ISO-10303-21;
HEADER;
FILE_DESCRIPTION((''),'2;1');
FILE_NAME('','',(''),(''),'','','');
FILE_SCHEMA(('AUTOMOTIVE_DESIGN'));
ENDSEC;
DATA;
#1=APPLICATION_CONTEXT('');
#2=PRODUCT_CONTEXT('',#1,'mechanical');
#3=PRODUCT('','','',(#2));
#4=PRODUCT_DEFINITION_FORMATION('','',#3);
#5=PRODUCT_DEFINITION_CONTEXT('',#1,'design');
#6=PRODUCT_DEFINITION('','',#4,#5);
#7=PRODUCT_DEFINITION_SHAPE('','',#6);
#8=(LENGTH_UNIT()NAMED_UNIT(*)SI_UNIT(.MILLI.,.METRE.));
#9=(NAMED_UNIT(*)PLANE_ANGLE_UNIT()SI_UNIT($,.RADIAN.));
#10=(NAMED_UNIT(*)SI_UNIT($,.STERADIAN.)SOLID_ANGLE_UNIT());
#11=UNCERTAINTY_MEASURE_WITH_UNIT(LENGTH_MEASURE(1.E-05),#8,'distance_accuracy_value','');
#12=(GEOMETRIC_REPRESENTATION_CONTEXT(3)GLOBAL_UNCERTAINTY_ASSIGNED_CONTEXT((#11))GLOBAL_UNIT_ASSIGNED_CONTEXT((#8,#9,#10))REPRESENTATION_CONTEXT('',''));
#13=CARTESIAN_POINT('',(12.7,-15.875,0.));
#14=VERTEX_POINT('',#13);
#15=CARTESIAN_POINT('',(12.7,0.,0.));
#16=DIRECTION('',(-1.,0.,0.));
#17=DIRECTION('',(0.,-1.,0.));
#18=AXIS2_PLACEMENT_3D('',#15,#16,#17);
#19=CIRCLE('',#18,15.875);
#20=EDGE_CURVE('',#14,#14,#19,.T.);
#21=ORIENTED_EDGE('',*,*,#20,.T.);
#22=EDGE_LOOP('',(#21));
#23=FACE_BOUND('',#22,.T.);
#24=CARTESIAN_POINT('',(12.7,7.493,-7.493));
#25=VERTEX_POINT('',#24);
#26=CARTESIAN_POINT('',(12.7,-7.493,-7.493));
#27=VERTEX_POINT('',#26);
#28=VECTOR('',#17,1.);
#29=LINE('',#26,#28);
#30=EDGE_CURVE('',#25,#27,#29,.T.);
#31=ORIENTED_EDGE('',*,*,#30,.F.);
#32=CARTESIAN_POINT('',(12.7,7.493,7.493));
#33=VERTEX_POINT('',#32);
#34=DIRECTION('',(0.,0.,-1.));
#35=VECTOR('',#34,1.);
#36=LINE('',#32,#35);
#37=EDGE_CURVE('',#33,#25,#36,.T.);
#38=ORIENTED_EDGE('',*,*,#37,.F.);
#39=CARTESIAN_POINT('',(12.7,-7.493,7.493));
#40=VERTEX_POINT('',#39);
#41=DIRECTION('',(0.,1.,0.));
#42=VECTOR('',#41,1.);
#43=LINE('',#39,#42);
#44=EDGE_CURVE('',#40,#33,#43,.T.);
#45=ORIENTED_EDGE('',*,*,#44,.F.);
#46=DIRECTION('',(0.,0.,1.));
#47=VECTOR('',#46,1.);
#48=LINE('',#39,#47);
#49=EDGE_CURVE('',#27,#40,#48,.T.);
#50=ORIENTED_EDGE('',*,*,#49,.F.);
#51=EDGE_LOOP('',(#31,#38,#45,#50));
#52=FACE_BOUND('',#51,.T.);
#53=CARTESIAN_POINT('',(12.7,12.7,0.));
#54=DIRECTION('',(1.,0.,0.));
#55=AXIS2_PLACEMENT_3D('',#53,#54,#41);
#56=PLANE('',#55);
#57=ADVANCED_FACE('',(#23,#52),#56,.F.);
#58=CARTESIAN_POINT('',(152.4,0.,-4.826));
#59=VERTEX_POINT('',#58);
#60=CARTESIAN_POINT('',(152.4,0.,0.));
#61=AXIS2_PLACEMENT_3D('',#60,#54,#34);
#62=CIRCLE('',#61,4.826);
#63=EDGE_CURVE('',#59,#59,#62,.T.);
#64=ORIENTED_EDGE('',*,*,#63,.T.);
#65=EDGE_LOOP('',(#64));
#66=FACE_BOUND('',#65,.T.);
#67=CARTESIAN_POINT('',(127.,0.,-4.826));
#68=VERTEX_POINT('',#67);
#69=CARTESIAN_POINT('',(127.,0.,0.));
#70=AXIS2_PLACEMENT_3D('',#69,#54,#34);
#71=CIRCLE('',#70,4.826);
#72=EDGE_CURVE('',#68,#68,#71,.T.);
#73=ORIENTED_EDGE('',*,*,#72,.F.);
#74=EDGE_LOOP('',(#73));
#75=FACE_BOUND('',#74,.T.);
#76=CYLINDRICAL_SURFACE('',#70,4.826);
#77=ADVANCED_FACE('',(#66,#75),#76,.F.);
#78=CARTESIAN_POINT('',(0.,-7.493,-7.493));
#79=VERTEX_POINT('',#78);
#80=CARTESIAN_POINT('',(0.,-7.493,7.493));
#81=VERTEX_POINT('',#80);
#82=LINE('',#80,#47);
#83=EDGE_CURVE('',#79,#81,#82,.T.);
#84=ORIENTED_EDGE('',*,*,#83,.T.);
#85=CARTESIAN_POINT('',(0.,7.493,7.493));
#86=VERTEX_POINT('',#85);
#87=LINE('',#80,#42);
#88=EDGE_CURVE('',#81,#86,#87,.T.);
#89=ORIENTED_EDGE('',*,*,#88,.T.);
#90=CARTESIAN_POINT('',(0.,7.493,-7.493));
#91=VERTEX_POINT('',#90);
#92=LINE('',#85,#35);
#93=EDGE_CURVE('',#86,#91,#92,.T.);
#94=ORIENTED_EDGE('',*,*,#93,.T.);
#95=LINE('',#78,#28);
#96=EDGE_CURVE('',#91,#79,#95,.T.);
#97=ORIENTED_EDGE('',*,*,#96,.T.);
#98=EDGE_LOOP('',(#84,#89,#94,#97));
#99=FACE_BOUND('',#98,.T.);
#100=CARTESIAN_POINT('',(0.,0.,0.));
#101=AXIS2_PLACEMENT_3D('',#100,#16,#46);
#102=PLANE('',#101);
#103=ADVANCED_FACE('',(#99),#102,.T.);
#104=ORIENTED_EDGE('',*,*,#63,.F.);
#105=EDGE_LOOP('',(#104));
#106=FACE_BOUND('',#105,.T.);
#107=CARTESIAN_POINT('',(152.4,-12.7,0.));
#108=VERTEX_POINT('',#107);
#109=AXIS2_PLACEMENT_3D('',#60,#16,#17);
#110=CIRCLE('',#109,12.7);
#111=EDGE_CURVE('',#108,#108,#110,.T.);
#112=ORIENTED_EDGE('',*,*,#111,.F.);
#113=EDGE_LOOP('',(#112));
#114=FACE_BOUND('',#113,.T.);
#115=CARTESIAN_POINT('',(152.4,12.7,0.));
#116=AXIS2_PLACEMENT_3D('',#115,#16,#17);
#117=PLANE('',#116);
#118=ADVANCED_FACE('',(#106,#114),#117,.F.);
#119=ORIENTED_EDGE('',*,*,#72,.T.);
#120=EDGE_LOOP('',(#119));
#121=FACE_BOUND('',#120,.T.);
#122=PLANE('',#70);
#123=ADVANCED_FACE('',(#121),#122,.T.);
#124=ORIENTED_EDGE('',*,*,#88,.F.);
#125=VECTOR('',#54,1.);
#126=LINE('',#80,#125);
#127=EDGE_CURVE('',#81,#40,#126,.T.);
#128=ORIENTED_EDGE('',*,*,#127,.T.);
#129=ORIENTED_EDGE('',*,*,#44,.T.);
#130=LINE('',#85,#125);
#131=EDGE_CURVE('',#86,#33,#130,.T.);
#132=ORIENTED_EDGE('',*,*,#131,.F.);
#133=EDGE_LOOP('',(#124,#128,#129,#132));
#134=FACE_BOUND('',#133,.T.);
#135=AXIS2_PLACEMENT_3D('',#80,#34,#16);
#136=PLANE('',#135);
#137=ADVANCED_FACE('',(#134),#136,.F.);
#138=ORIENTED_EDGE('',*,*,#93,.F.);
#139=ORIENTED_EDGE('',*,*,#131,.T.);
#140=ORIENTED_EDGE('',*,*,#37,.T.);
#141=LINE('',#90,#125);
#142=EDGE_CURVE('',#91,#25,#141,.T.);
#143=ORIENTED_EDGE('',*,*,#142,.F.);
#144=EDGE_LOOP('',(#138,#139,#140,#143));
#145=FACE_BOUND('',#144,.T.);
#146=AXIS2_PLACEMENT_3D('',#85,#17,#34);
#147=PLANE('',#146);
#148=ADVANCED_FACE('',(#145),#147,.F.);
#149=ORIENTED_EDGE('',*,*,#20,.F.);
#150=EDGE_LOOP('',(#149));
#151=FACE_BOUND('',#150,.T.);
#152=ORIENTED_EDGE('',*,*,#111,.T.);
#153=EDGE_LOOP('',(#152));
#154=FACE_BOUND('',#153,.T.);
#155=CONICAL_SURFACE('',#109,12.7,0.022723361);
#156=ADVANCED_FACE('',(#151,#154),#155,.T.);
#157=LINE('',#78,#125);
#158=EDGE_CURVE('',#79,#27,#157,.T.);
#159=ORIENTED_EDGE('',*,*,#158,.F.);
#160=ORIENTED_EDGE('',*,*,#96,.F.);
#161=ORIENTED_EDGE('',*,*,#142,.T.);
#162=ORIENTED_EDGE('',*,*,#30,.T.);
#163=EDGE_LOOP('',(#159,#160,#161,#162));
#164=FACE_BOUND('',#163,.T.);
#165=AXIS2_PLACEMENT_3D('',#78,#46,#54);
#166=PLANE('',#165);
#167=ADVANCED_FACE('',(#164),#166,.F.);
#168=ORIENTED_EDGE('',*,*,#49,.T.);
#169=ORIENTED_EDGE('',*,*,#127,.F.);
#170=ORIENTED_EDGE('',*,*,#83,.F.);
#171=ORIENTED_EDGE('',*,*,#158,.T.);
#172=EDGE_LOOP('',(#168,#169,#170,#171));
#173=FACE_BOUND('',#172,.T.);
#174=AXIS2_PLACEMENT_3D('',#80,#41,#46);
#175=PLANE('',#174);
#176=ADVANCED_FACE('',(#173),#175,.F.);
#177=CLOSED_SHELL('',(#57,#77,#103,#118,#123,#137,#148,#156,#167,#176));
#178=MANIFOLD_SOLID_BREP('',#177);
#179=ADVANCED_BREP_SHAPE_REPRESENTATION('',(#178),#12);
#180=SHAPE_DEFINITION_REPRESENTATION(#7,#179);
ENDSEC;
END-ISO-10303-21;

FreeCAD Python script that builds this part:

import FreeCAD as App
import Part
import Sketcher

V = App.Vector
Q = App.Units.Quantity

doc = App.newDocument("Part")
params = doc.addObject("Spreadsheet::Sheet", "Params")
for row, (alias, value) in enumerate([
    ("sketch1_width", "5.5 in"),
    ("sketch1_height", "0.5 in"),
    ("sketch1_height2", "0.625 in"),
    ("revolution_angle", "360 deg"),
    ("sketch2_diameter", "0.38 in"),
    ("pocket1_length", "1 in"),
    ("sketch3_width", "0.59 in"),
    ("pad1_length", "0.5 in"),
], start=1):
    params.set(f"A{row}", alias)
    params.set(f"B{row}", "=" + value)
    params.setAlias(f"B{row}", alias)

body = doc.addObject("PartDesign::Body", "Body")

# Sketch on XY plane
sketch1 = doc.addObject("Sketcher::SketchObject", "Sketch")
body.addObject(sketch1)
sketch1.AttachmentSupport = (doc.XY_Plane, [""])
sketch1.MapMode = "FlatFace"
sketch1.addGeometry([
    Part.LineSegment(V(13, 16, 0), V(13, 0, 0)),
    Part.LineSegment(V(13, 0, 0), V(152, 0, 0)),
    Part.LineSegment(V(152, 0, 0), V(152, 13, 0)),
    Part.LineSegment(V(152, 13, 0), V(13, 16, 0)),
], False)
sketch1.addConstraint([
    Sketcher.Constraint("Coincident", 0, 2, 1, 1),
    Sketcher.Constraint("Coincident", 1, 2, 2, 1),
    Sketcher.Constraint("Coincident", 2, 2, 3, 1),
    Sketcher.Constraint("Coincident", 3, 2, 0, 1),
    Sketcher.Constraint("Vertical", 0),
    Sketcher.Constraint("Horizontal", 1),
    Sketcher.Constraint("Vertical", 2),
    Sketcher.Constraint("PointOnObject", 0, 2, -1),
    Sketcher.Constraint("DistanceX", 1, 1, 1, 2, Q("5.5 in")),
    Sketcher.Constraint("DistanceY", 2, 1, 2, 2, Q("0.5 in")),
    Sketcher.Constraint("DistanceX", -1, 1, 1, 2, Q("6 in")),
    Sketcher.Constraint("DistanceY", 0, 2, 0, 1, Q("0.625 in")),
])
sketch1.setExpression("Constraints[8]", "Params.sketch1_width")
sketch1.setExpression("Constraints[9]", "Params.sketch1_height")
sketch1.setExpression("Constraints[11]", "Params.sketch1_height2")
revolution = doc.addObject("PartDesign::Revolution", "Revolution")
body.addObject(revolution)
revolution.Profile = sketch1
revolution.ReferenceAxis = (sketch1, ["H_Axis"])
revolution.setExpression("Angle", "Params.revolution_angle")

# Sketch on YZ plane
sketch2 = doc.addObject("Sketcher::SketchObject", "Sketch001")
body.addObject(sketch2)
sketch2.AttachmentSupport = (doc.YZ_Plane, [""])
sketch2.MapMode = "FlatFace"
sketch2.AttachmentOffset = App.Placement(V(0, 0, 6 * 25.4), App.Rotation())
sketch2.addGeometry(Part.Circle(V(0, 0, 0), V(0, 0, 1), 4.8), False)
sketch2.addConstraint([
    Sketcher.Constraint("Coincident", 0, 3, -1, 1),
    Sketcher.Constraint("Diameter", 0, Q("0.38 in")),
])
sketch2.setExpression("Constraints[1]", "Params.sketch2_diameter")
pocket1 = doc.addObject("PartDesign::Pocket", "Pocket")
body.addObject(pocket1)
pocket1.Profile = sketch2
pocket1.setExpression("Length", "Params.pocket1_length")

# Sketch on YZ plane
sketch3 = doc.addObject("Sketcher::SketchObject", "Sketch002")
body.addObject(sketch3)
sketch3.AttachmentSupport = (doc.YZ_Plane, [""])
sketch3.MapMode = "FlatFace"
sketch3.AttachmentOffset = App.Placement(V(0, 0, 0.5 * 25.4), App.Rotation())
sketch3.addGeometry([
    Part.LineSegment(V(7, -7, 0), V(-7, -7, 0)),
    Part.LineSegment(V(-7, -7, 0), V(-7, 7, 0)),
    Part.LineSegment(V(-7, 7, 0), V(7, 7, 0)),
    Part.LineSegment(V(7, 7, 0), V(7, -7, 0)),
], False)
sketch3.addConstraint([
    Sketcher.Constraint("Coincident", 0, 2, 1, 1),
    Sketcher.Constraint("Coincident", 1, 2, 2, 1),
    Sketcher.Constraint("Coincident", 2, 2, 3, 1),
    Sketcher.Constraint("Coincident", 3, 2, 0, 1),
    Sketcher.Constraint("Horizontal", 0),
    Sketcher.Constraint("Vertical", 1),
    Sketcher.Constraint("Horizontal", 2),
    Sketcher.Constraint("Vertical", 3),
    Sketcher.Constraint("Symmetric", 0, 2, 2, 2, -1, 1),
    Sketcher.Constraint("Equal", 2, 1),
    Sketcher.Constraint("DistanceX", 0, 2, 0, 1, Q("0.59 in")),
])
sketch3.setExpression("Constraints[10]", "Params.sketch3_width")
pad1 = doc.addObject("PartDesign::Pad", "Pad")
body.addObject(pad1)
pad1.Profile = sketch3
pad1.setExpression("Length", "Params.pad1_length")
pad1.Reversed = True

doc.recompute()
